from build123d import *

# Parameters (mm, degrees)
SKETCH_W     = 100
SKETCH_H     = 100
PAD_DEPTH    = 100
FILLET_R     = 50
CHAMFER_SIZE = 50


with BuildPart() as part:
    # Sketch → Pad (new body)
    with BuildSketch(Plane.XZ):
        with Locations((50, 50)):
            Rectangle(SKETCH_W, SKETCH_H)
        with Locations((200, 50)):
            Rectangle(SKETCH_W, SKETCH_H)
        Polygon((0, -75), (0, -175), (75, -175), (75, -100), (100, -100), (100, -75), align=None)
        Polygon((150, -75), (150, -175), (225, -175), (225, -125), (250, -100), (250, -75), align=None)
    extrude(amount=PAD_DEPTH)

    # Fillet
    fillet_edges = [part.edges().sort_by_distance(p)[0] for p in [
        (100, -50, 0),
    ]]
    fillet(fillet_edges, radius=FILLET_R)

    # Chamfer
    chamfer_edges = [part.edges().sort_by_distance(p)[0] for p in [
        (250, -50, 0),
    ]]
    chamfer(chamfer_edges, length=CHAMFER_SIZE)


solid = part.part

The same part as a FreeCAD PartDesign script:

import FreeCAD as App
import Part
import Sketcher

V = App.Vector


def edges_at(feature, points):
    """Names of the edges that pass closest to the given points."""
    edges = feature.Shape.Edges
    near = lambda p: min(range(len(edges)), key=lambda i: edges[i].distToShape(Part.Vertex(*p))[0])
    return sorted({f"Edge{near(p) + 1}" for p in points})


def add_polygon(sketch, points):
    """Adds a closed chain of lines whose ends are joined by coincident constraints."""
    first, n = sketch.GeometryCount, len(points)
    for a, b in zip(points, points[1:] + points[:1]):
        sketch.addGeometry(Part.LineSegment(App.Vector(*a, 0), App.Vector(*b, 0)), False)
    for i in range(n):
        sketch.addConstraint(Sketcher.Constraint("Coincident", first + i, 2, first + (i + 1) % n, 1))

doc = App.newDocument("Part")
body = doc.addObject("PartDesign::Body", "Body")
body.AllowCompound = True

sketch1 = doc.addObject("Sketcher::SketchObject", "Sketch")
body.addObject(sketch1)
sketch1.AttachmentSupport = (doc.XZ_Plane, [""])
sketch1.MapMode = "FlatFace"
add_polygon(sketch1, [(0, 100), (0, 0), (100, 0), (100, 100)])
add_polygon(sketch1, [(150, 100), (150, 0), (250, 0), (250, 100)])
add_polygon(sketch1, [(0, -75), (0, -175), (75, -175), (75, -100), (100, -100), (100, -75)])
add_polygon(sketch1, [(150, -75), (150, -175), (225, -175), (225, -125), (250, -100), (250, -75)])
sketch1.addConstraint(Sketcher.Constraint("Vertical", 0))
sketch1.addConstraint(Sketcher.Constraint("Horizontal", 1))
sketch1.addConstraint(Sketcher.Constraint("Vertical", 2))
sketch1.addConstraint(Sketcher.Constraint("Horizontal", 3))
sketch1.addConstraint(Sketcher.Constraint("Vertical", 4))
sketch1.addConstraint(Sketcher.Constraint("Horizontal", 5))
sketch1.addConstraint(Sketcher.Constraint("Vertical", 6))
sketch1.addConstraint(Sketcher.Constraint("Horizontal", 7))
sketch1.addConstraint(Sketcher.Constraint("Vertical", 8))
sketch1.addConstraint(Sketcher.Constraint("Horizontal", 9))
sketch1.addConstraint(Sketcher.Constraint("Vertical", 10))
sketch1.addConstraint(Sketcher.Constraint("Horizontal", 11))
sketch1.addConstraint(Sketcher.Constraint("Vertical", 12))
sketch1.addConstraint(Sketcher.Constraint("Horizontal", 13))
sketch1.addConstraint(Sketcher.Constraint("Vertical", 14))
sketch1.addConstraint(Sketcher.Constraint("Horizontal", 15))
sketch1.addConstraint(Sketcher.Constraint("Vertical", 16))
sketch1.addConstraint(Sketcher.Constraint("Vertical", 18))
sketch1.addConstraint(Sketcher.Constraint("Horizontal", 19))
sketch1.addConstraint(Sketcher.Constraint("Coincident", 0, 2, -1, 1))
sketch1.addConstraint(Sketcher.Constraint("Symmetric", 2, 2, 11, 2, -1))
sketch1.addConstraint(Sketcher.Constraint("Symmetric", 6, 2, 17, 2, -1))
sketch1.addConstraint(Sketcher.Constraint("PointOnObject", 4, 2, -1))
sketch1.addConstraint(Sketcher.Constraint("PointOnObject", 8, 2, -2))
sketch1.addConstraint(Sketcher.Constraint("Horizontal", 3, 2, 6, 2))
sketch1.addConstraint(Sketcher.Constraint("Horizontal", 9, 2, 14, 2))
sketch1.addConstraint(Sketcher.Constraint("Horizontal", 13, 2, 18, 2))
sketch1.addConstraint(Sketcher.Constraint("Vertical", 7, 2, 14, 2))
sketch1.addConstraint(Sketcher.Constraint("Equal", 3, 5))
sketch1.addConstraint(Sketcher.Constraint("Equal", 9, 15))
sketch1.addConstraint(Sketcher.Constraint("Equal", 19, 0))
sketch1.addConstraint(Sketcher.Constraint("Equal", 6, 8))
sketch1.addConstraint(Sketcher.Constraint("Equal", 15, 10))
sketch1.addConstraint(Sketcher.Constraint("DistanceX", 1, 1, 1, 2, 100.0))
sketch1.addConstraint(Sketcher.Constraint("DistanceX", 9, 1, 9, 2, 75.0))
sketch1.addConstraint(Sketcher.Constraint("DistanceY", 16, 1, 16, 2, 50.0))
sketch1.addConstraint(Sketcher.Constraint("DistanceX", -1, 1, 4, 2, 150.0))
pad1 = doc.addObject("PartDesign::Pad", "Pad")
body.addObject(pad1)
pad1.Profile = sketch1
pad1.Length = 100
doc.recompute()

fillet = doc.addObject("PartDesign::Fillet", "Fillet")
body.addObject(fillet)
fillet.Base = (pad1, edges_at(pad1, [(100, -50, 0)]))
fillet.Radius = 50
doc.recompute()

chamfer = doc.addObject("PartDesign::Chamfer", "Chamfer")
body.addObject(chamfer)
chamfer.Base = (fillet, edges_at(fillet, [(250, -50, 0)]))
chamfer.Size = 50

doc.recompute()
